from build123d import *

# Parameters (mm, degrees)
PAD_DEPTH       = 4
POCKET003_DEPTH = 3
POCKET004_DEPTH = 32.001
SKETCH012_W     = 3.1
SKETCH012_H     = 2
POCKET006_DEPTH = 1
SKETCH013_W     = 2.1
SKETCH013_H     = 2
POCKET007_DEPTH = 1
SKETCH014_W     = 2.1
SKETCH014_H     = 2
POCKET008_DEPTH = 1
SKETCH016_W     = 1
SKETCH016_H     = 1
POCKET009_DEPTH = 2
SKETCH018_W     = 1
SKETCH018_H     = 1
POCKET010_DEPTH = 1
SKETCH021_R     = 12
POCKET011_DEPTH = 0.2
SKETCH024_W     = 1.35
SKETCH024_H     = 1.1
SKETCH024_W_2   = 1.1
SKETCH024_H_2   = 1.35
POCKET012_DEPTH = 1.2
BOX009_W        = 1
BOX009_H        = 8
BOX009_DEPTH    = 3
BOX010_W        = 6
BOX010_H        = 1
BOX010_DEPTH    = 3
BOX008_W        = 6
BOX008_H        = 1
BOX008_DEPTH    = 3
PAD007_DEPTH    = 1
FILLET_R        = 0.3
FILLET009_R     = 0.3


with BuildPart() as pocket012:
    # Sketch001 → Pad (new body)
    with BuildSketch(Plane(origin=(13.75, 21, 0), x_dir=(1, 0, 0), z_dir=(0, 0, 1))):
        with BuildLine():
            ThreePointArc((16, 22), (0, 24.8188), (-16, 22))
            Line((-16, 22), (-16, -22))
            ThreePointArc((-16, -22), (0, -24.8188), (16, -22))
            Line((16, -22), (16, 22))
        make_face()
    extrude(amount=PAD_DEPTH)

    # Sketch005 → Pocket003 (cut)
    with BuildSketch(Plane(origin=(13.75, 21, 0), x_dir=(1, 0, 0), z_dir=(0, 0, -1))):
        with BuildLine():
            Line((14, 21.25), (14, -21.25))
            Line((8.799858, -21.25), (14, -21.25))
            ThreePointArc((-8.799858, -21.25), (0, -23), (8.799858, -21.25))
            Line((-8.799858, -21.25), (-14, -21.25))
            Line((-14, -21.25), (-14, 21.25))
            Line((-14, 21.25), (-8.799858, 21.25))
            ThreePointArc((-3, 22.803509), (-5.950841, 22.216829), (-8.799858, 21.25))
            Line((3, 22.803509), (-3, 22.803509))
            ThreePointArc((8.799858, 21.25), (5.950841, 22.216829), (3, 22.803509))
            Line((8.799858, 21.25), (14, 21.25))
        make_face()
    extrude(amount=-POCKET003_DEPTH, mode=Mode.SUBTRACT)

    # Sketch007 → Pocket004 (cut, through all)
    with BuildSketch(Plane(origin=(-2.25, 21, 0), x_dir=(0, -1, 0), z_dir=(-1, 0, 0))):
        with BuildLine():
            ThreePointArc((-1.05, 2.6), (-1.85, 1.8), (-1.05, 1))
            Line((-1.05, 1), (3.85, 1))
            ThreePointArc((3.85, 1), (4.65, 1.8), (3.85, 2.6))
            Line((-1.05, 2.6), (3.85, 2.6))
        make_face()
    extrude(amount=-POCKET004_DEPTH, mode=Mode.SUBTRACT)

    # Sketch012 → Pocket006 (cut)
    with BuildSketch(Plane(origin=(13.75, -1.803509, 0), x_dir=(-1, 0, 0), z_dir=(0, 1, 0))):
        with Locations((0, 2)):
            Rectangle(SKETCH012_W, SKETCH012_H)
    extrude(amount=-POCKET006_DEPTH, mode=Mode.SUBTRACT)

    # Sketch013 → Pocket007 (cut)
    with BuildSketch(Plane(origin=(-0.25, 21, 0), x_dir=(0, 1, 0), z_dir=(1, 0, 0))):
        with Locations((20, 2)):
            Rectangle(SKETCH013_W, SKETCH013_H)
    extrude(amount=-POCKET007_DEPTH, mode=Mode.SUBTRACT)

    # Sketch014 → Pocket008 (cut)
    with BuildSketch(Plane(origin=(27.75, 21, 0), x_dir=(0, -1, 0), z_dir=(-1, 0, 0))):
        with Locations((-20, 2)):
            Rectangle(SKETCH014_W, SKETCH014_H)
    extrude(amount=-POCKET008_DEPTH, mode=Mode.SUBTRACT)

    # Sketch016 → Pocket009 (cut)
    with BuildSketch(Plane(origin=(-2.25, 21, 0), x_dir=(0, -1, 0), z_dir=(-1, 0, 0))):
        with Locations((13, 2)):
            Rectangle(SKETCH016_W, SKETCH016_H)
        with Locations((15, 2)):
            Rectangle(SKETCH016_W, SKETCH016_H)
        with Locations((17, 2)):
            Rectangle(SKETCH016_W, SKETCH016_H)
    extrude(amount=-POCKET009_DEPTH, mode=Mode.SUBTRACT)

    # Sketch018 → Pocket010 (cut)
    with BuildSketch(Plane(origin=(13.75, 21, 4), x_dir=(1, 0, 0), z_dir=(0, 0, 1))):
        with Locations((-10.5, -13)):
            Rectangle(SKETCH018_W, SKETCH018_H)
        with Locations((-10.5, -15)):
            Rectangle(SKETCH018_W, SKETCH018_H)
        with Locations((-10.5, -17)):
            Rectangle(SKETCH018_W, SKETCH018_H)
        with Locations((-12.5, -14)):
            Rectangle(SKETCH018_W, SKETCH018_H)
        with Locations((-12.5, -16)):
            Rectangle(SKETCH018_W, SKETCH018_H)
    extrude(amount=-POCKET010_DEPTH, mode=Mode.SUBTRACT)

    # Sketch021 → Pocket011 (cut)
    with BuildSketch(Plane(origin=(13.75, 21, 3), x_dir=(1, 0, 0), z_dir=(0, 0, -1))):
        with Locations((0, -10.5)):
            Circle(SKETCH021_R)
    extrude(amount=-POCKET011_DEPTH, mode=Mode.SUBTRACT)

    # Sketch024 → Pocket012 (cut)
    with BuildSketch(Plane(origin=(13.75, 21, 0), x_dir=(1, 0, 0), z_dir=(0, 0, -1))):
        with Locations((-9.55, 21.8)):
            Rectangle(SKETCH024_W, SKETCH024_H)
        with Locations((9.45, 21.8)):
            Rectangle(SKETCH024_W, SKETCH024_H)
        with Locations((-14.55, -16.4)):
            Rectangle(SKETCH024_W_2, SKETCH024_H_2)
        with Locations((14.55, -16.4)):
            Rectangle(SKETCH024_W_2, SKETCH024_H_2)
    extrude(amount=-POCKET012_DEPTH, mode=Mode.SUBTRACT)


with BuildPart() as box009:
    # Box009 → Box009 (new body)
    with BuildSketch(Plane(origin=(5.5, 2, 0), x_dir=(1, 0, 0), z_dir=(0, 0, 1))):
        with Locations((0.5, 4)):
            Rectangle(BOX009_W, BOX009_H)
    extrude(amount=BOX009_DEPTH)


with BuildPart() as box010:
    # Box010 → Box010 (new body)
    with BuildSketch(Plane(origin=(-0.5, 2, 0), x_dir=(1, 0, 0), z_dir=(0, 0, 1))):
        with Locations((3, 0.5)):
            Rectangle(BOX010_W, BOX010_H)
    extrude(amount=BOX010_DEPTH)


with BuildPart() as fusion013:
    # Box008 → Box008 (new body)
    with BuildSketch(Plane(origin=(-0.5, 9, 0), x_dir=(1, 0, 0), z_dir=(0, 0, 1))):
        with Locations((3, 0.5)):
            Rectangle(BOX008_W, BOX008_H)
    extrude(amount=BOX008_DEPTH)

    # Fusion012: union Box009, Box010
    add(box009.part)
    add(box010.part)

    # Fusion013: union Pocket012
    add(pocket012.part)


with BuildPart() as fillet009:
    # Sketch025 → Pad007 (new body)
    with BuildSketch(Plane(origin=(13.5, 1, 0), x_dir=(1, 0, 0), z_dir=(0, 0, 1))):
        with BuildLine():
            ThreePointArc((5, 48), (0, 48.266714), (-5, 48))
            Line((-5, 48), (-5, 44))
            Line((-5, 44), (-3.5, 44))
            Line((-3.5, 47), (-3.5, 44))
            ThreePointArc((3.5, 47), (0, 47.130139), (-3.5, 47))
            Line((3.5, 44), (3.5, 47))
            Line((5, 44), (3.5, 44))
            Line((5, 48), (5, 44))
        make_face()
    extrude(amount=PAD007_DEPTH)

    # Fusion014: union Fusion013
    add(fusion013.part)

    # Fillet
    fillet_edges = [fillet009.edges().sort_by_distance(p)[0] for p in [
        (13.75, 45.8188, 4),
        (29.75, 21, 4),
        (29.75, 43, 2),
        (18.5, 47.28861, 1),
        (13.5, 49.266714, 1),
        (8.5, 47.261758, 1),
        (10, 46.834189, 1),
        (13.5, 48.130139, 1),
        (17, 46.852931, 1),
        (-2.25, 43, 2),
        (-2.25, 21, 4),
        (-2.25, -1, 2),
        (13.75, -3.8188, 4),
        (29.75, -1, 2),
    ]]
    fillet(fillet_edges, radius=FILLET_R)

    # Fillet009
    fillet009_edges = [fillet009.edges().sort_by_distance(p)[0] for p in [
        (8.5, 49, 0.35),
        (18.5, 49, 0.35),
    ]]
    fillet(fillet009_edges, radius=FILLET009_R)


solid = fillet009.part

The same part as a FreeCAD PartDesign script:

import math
import FreeCAD as App
import Part
import Sketcher

V = App.Vector
Q = App.Units.Quantity


def edges_at(feature, points):
    """Names of the edges that pass closest to the given points."""
    edges = feature.Shape.Edges
    near = lambda p: min(range(len(edges)), key=lambda i: edges[i].distToShape(Part.Vertex(*p))[0])
    return sorted({f"Edge{near(p) + 1}" for p in points})


def add_polygon(sketch, points):
    """Adds a closed chain of lines whose ends are joined by coincident constraints."""
    first, n = sketch.GeometryCount, len(points)
    for a, b in zip(points, points[1:] + points[:1]):
        sketch.addGeometry(Part.LineSegment(App.Vector(*a, 0), App.Vector(*b, 0)), False)
    for i in range(n):
        sketch.addConstraint(Sketcher.Constraint("Coincident", first + i, 2, first + (i + 1) % n, 1))

doc = App.newDocument("Part")
body = doc.addObject("PartDesign::Body", "Body")

# Sketch on XY plane
sketch1 = body.newObject("Sketcher::SketchObject", "Sketch")
sketch1.AttachmentSupport = (doc.getObject("XY_Plane"), [""])
sketch1.MapMode = "FlatFace"
sketch1.addGeometry([
    Part.ArcOfCircle(Part.Circle(V(13.75, -0.999994, 0), V(0, 0, 1), 46.818794), math.radians(70.016891), math.radians(109.983109)),
    Part.LineSegment(V(-2.25, 43, 0), V(-2.25, -1, 0)),
    Part.ArcOfCircle(Part.Circle(V(13.75, 42.999994, 0), V(0, 0, 1), 46.818794), math.radians(-109.983109), math.radians(-70.016891)),
    Part.LineSegment(V(29.75, -1, 0), V(29.75, 43, 0)),
], False)
sketch1.addConstraint([
    Sketcher.Constraint("Coincident", 0, 2, 1, 1),
    Sketcher.Constraint("Coincident", 1, 2, 2, 1),
    Sketcher.Constraint("Coincident", 2, 2, 3, 1),
    Sketcher.Constraint("Coincident", 3, 2, 0, 1),
    Sketcher.Constraint("Vertical", 1),
    Sketcher.Constraint("Vertical", 3),
    Sketcher.Constraint("Equal", 0, 2),
    Sketcher.Constraint("Horizontal", 1, 2, 2, 2),
    Sketcher.Constraint("Horizontal", 0, 2, 3, 2),
    Sketcher.Constraint("DistanceY", 1, 2, 1, 1, Q("44 mm")),
    Sketcher.Constraint("DistanceY", -1, 1, 0, 2, Q("43 mm")),
    Sketcher.Constraint("DistanceX", 0, 2, 2, 3, Q("16 mm")),
    Sketcher.Constraint("DistanceX", -1, 1, 0, 3, Q("13.75 mm")),
    Sketcher.Constraint("Radius", 0, Q("46.818794 mm")),
])
pad1 = body.newObject("PartDesign::Pad", "Pad")
pad1.Profile = sketch1
pad1.Length = 4

# Sketch on XY plane
sketch2 = body.newObject("Sketcher::SketchObject", "Sketch001")
sketch2.AttachmentSupport = (doc.getObject("XY_Plane"), [""])
sketch2.MapMode = "FlatFace"
sketch2.addGeometry([
    Part.LineSegment(V(27.75, 42.25, 0), V(27.75, -0.25, 0)),  # 0
    Part.LineSegment(V(27.75, -0.25, 0), V(22.549858, -0.25, 0)),  # 1
    Part.ArcOfCircle(Part.Circle(V(13.74999, 21.00003, 0), V(0, 0, 1), 23.000031), math.radians(-82.505268), math.radians(-67.505023)),  # 2
    Part.LineSegment(V(16.75, -1.803509, 0), V(10.75, -1.803509, 0)),  # 3
    Part.ArcOfCircle(Part.Circle(V(13.75001, 21.00003, 0), V(0, 0, 1), 23.000031), math.radians(-112.494977), math.radians(-97.494732)),  # 4
    Part.LineSegment(V(4.950142, -0.25, 0), V(-0.25, -0.25, 0)),  # 5
    Part.LineSegment(V(-0.25, -0.25, 0), V(-0.25, 42.25, 0)),  # 6
    Part.LineSegment(V(-0.25, 42.25, 0), V(4.950142, 42.25, 0)),  # 7
    Part.ArcOfCircle(Part.Circle(V(13.75, 21, 0), V(0, 0, 1), 23), math.radians(67.505018), math.radians(112.494982)),  # 8
    Part.LineSegment(V(22.549858, 42.25, 0), V(27.75, 42.25, 0)),  # 9
], False)
sketch2.addConstraint([
    Sketcher.Constraint("Coincident", 0, 2, 1, 1),
    Sketcher.Constraint("Coincident", 1, 2, 2, 2),
    Sketcher.Constraint("Coincident", 2, 1, 3, 1),
    Sketcher.Constraint("Coincident", 3, 2, 4, 2),
    Sketcher.Constraint("Coincident", 4, 1, 5, 1),
    Sketcher.Constraint("Coincident", 5, 2, 6, 1),
    Sketcher.Constraint("Coincident", 6, 2, 7, 1),
    Sketcher.Constraint("Coincident", 7, 2, 8, 2),
    Sketcher.Constraint("Coincident", 8, 1, 9, 1),
    Sketcher.Constraint("Coincident", 9, 2, 0, 1),
    Sketcher.Constraint("Vertical", 0),
    Sketcher.Constraint("Horizontal", 1),
    Sketcher.Constraint("Horizontal", 3),
    Sketcher.Constraint("Horizontal", 5),
    Sketcher.Constraint("Vertical", 6),
    Sketcher.Constraint("Horizontal", 7),
    Sketcher.Constraint("Horizontal", 9),
    Sketcher.Constraint("Equal", 2, 4),
    Sketcher.Constraint("Horizontal", 2, 3, 4, 3),
    Sketcher.Constraint("Horizontal", 1, 2, 4, 1),
    Sketcher.Constraint("Horizontal", 7, 2, 8, 1),
    Sketcher.Constraint("Vertical", 4, 1, 7, 2),
    Sketcher.Constraint("Vertical", 1, 2, 8, 1),
    Sketcher.Constraint("Equal", 1, 5),
    Sketcher.Constraint("Radius", 8, Q("23 mm")),
    Sketcher.Constraint("DistanceX", 3, 2, 3, 1, Q("6 mm")),
    Sketcher.Constraint("DistanceY", 0, 2, 0, 1, Q("42.5 mm")),
    Sketcher.Constraint("DistanceY", -1, 1, 8, 3, Q("21 mm")),
    Sketcher.Constraint("DistanceX", 8, 3, 0, 2, Q("14 mm")),
    Sketcher.Constraint("DistanceX", -1, 1, 8, 3, Q("13.75 mm")),
    Sketcher.Constraint("DistanceY", 0, 2, -1, 1, Q("0.25 mm")),
    Sketcher.Constraint("Radius", 2, Q("23.000031 mm")),
    Sketcher.Constraint("DistanceX", -1, 1, 2, 3, Q("13.74999 mm")),
])
pocket1 = body.newObject("PartDesign::Pocket", "Pocket")
pocket1.Profile = sketch2
pocket1.Length = 3
pocket1.Reversed = True

# Sketch on YZ plane
sketch3 = body.newObject("Sketcher::SketchObject", "Sketch002")
sketch3.AttachmentSupport = (doc.getObject("YZ_Plane"), [""])
sketch3.MapMode = "FlatFace"
sketch3.AttachmentOffset = App.Placement(V(0, 0, -2.25), App.Rotation())
sketch3.addGeometry([
    Part.ArcOfCircle(Part.Circle(V(22.05, 1.8, 0), V(0, 0, 1), 0.8), math.radians(-90), math.radians(90)),
    Part.LineSegment(V(22.05, 1, 0), V(17.15, 1, 0)),
    Part.ArcOfCircle(Part.Circle(V(17.15, 1.8, 0), V(0, 0, 1), 0.8), math.radians(90), math.radians(270)),
    Part.LineSegment(V(17.15, 2.6, 0), V(22.05, 2.6, 0)),
], False)
sketch3.addConstraint([
    Sketcher.Constraint("Tangent", 0, 1, 1, 1),
    Sketcher.Constraint("Tangent", 1, 2, 2, 2),
    Sketcher.Constraint("Tangent", 2, 1, 3, 1),
    Sketcher.Constraint("Tangent", 3, 2, 0, 2),
    Sketcher.Constraint("Horizontal", 1),
    Sketcher.Constraint("Horizontal", 3),
    Sketcher.Constraint("Radius", 0, Q("0.8 mm")),
    Sketcher.Constraint("DistanceX", 1, 2, 1, 1, Q("4.9 mm")),
    Sketcher.Constraint("DistanceY", -1, 1, 0, 1, Q("1 mm")),
    Sketcher.Constraint("DistanceX", -1, 1, 0, 3, Q("22.05 mm")),
])
pocket2 = body.newObject("PartDesign::Pocket", "Pocket001")
pocket2.Profile = sketch3
pocket2.Type = "ThroughAll"
pocket2.Reversed = True

# Sketch on XZ plane
sketch4 = body.newObject("Sketcher::SketchObject", "Sketch003")
sketch4.AttachmentSupport = (doc.getObject("XZ_Plane"), [""])
sketch4.MapMode = "FlatFace"
sketch4.AttachmentOffset = App.Placement(V(0, 0, 1.803509), App.Rotation())
add_polygon(sketch4, [(15.3, 3), (15.3, 1), (12.2, 1), (12.2, 3)])  # lines 0-3
sketch4.addConstraint([
    Sketcher.Constraint("Vertical", 0),
    Sketcher.Constraint("Horizontal", 1),
    Sketcher.Constraint("Vertical", 2),
    Sketcher.Constraint("Horizontal", 3),
    Sketcher.Constraint("DistanceY", 0, 2, 0, 1, Q("2 mm")),
    Sketcher.Constraint("DistanceX", 1, 2, 1, 1, Q("3.1 mm")),
    Sketcher.Constraint("DistanceY", -1, 1, 0, 2, Q("1 mm")),
    Sketcher.Constraint("DistanceX", -1, 1, 0, 2, Q("15.3 mm")),
])
pocket3 = body.newObject("PartDesign::Pocket", "Pocket002")
pocket3.Profile = sketch4
pocket3.Length = 1
pocket3.Reversed = True

# Sketch on YZ plane
sketch5 = body.newObject("Sketcher::SketchObject", "Sketch004")
sketch5.AttachmentSupport = (doc.getObject("YZ_Plane"), [""])
sketch5.MapMode = "FlatFace"
sketch5.AttachmentOffset = App.Placement(V(0, 0, -0.25), App.Rotation())
add_polygon(sketch5, [(39.95, 3), (39.95, 1), (42.05, 1), (42.05, 3)])  # lines 0-3
sketch5.addConstraint([
    Sketcher.Constraint("Vertical", 0),
    Sketcher.Constraint("Horizontal", 1),
    Sketcher.Constraint("Vertical", 2),
    Sketcher.Constraint("Horizontal", 3),
    Sketcher.Constraint("DistanceY", 0, 2, 0, 1, Q("2 mm")),
    Sketcher.Constraint("DistanceX", 1, 1, 1, 2, Q("2.1 mm")),
    Sketcher.Constraint("DistanceY", -1, 1, 0, 2, Q("1 mm")),
    Sketcher.Constraint("DistanceX", -1, 1, 0, 2, Q("39.95 mm")),
])
pocket4 = body.newObject("PartDesign::Pocket", "Pocket003")
pocket4.Profile = sketch5
pocket4.Length = 1

# Sketch on YZ plane
sketch6 = body.newObject("Sketcher::SketchObject", "Sketch005")
sketch6.AttachmentSupport = (doc.getObject("YZ_Plane"), [""])
sketch6.MapMode = "FlatFace"
sketch6.AttachmentOffset = App.Placement(V(0, 0, 27.75), App.Rotation())
add_polygon(sketch6, [(42.05, 3), (42.05, 1), (39.95, 1), (39.95, 3)])  # lines 0-3
sketch6.addConstraint([
    Sketcher.Constraint("Vertical", 0),
    Sketcher.Constraint("Horizontal", 1),
    Sketcher.Constraint("Vertical", 2),
    Sketcher.Constraint("Horizontal", 3),
    Sketcher.Constraint("DistanceY", 0, 2, 0, 1, Q("2 mm")),
    Sketcher.Constraint("DistanceX", 1, 2, 1, 1, Q("2.1 mm")),
    Sketcher.Constraint("DistanceY", -1, 1, 0, 2, Q("1 mm")),
    Sketcher.Constraint("DistanceX", -1, 1, 0, 2, Q("42.05 mm")),
])
pocket5 = body.newObject("PartDesign::Pocket", "Pocket004")
pocket5.Profile = sketch6
pocket5.Length = 1
pocket5.Reversed = True

# Sketch on YZ plane
sketch7 = body.newObject("Sketcher::SketchObject", "Sketch006")
sketch7.AttachmentSupport = (doc.getObject("YZ_Plane"), [""])
sketch7.MapMode = "FlatFace"
sketch7.AttachmentOffset = App.Placement(V(0, 0, -2.25), App.Rotation())
add_polygon(sketch7, [(8.5, 2.5), (8.5, 1.5), (7.5, 1.5), (7.5, 2.5)])  # lines 0-3
add_polygon(sketch7, [(6.5, 2.5), (6.5, 1.5), (5.5, 1.5), (5.5, 2.5)])  # lines 4-7
add_polygon(sketch7, [(4.5, 2.5), (4.5, 1.5), (3.5, 1.5), (3.5, 2.5)])  # lines 8-11
sketch7.addConstraint([
    Sketcher.Constraint("Vertical", 0),
    Sketcher.Constraint("Horizontal", 1),
    Sketcher.Constraint("Vertical", 2),
    Sketcher.Constraint("Horizontal", 3),
    Sketcher.Constraint("Vertical", 4),
    Sketcher.Constraint("Horizontal", 5),
    Sketcher.Constraint("Vertical", 6),
    Sketcher.Constraint("Horizontal", 7),
    Sketcher.Constraint("Vertical", 8),
    Sketcher.Constraint("Horizontal", 9),
    Sketcher.Constraint("Vertical", 10),
    Sketcher.Constraint("Horizontal", 11),
    Sketcher.Constraint("Horizontal", 1, 2, 4, 2),
    Sketcher.Constraint("Horizontal", 3, 2, 6, 2),
    Sketcher.Constraint("Horizontal", 5, 2, 8, 2),
    Sketcher.Constraint("Horizontal", 7, 2, 10, 2),
    Sketcher.Constraint("Equal", 3, 5),
    Sketcher.Constraint("Equal", 7, 9),
    Sketcher.Constraint("Equal", 11, 0),
    Sketcher.Constraint("DistanceX", 1, 2, 1, 1, Q("1 mm")),
    Sketcher.Constraint("DistanceX", 4, 2, 1, 2, Q("1 mm")),
    Sketcher.Constraint("DistanceX", 8, 2, 5, 2, Q("1 mm")),
    Sketcher.Constraint("DistanceX", -1, 1, 0, 2, Q("8.5 mm")),
    Sketcher.Constraint("DistanceY", -1, 1, 0, 2, Q("1.5 mm")),
])
pocket6 = body.newObject("PartDesign::Pocket", "Pocket005")
pocket6.Profile = sketch7
pocket6.Length = 2
pocket6.Reversed = True

# Sketch on XY plane
sketch8 = body.newObject("Sketcher::SketchObject", "Sketch007")
sketch8.AttachmentSupport = (doc.getObject("XY_Plane"), [""])
sketch8.MapMode = "FlatFace"
sketch8.AttachmentOffset = App.Placement(V(0, 0, 4), App.Rotation())
add_polygon(sketch8, [(2.75, 8.5), (2.75, 7.5), (3.75, 7.5), (3.75, 8.5)])  # lines 0-3
add_polygon(sketch8, [(2.75, 6.5), (2.75, 5.5), (3.75, 5.5), (3.75, 6.5)])  # lines 4-7
add_polygon(sketch8, [(2.75, 4.5), (2.75, 3.5), (3.75, 3.5), (3.75, 4.5)])  # lines 8-11
add_polygon(sketch8, [(0.75, 7.5), (0.75, 6.5), (1.75, 6.5), (1.75, 7.5)])  # lines 12-15
add_polygon(sketch8, [(0.75, 5.5), (0.75, 4.5), (1.75, 4.5), (1.75, 5.5)])  # lines 16-19
sketch8.addConstraint([
    Sketcher.Constraint("Vertical", 0),
    Sketcher.Constraint("Horizontal", 1),
    Sketcher.Constraint("Vertical", 2),
    Sketcher.Constraint("Horizontal", 3),
    Sketcher.Constraint("Vertical", 4),
    Sketcher.Constraint("Horizontal", 5),
    Sketcher.Constraint("Vertical", 6),
    Sketcher.Constraint("Horizontal", 7),
    Sketcher.Constraint("Vertical", 8),
    Sketcher.Constraint("Horizontal", 9),
    Sketcher.Constraint("Vertical", 10),
    Sketcher.Constraint("Horizontal", 11),
    Sketcher.Constraint("Vertical", 12),
    Sketcher.Constraint("Horizontal", 13),
    Sketcher.Constraint("Vertical", 14),
    Sketcher.Constraint("Horizontal", 15),
    Sketcher.Constraint("Vertical", 16),
    Sketcher.Constraint("Horizontal", 17),
    Sketcher.Constraint("Vertical", 18),
    Sketcher.Constraint("Horizontal", 19),
    Sketcher.Constraint("Horizontal", 7, 2, 12, 2),
    Sketcher.Constraint("Horizontal", 1, 2, 14, 2),
    Sketcher.Constraint("Horizontal", 11, 2, 16, 2),
    Sketcher.Constraint("Horizontal", 5, 2, 18, 2),
    Sketcher.Constraint("Vertical", 3, 2, 4, 2),
    Sketcher.Constraint("Vertical", 2, 2, 5, 2),
    Sketcher.Constraint("Vertical", 7, 2, 8, 2),
    Sketcher.Constraint("Vertical", 6, 2, 9, 2),
    Sketcher.Constraint("Vertical", 15, 2, 16, 2),
    Sketcher.Constraint("Vertical", 14, 2, 17, 2),
    Sketcher.Constraint("Equal", 11, 13),
    Sketcher.Constraint("Equal", 19, 0),
    Sketcher.Constraint("Equal", 2, 4),
    Sketcher.Constraint("Equal", 6, 8),
    Sketcher.Constraint("Equal", 10, 12),
    Sketcher.Constraint("Equal", 14, 16),
    Sketcher.Constraint("DistanceX", 1, 1, 1, 2, Q("1 mm")),
    Sketcher.Constraint("DistanceX", 12, 2, 7, 2, Q("2 mm")),
    Sketcher.Constraint("DistanceY", -1, 1, 0, 2, Q("7.5 mm")),
    Sketcher.Constraint("DistanceX", -1, 1, 0, 2, Q("2.75 mm")),
])
pocket7 = body.newObject("PartDesign::Pocket", "Pocket006")
pocket7.Profile = sketch8
pocket7.Length = 1

# Sketch on XY plane
sketch9 = body.newObject("Sketcher::SketchObject", "Sketch008")
sketch9.AttachmentSupport = (doc.getObject("XY_Plane"), [""])
sketch9.MapMode = "FlatFace"
sketch9.AttachmentOffset = App.Placement(V(0, 0, 3), App.Rotation())
sketch9.addGeometry(Part.Circle(V(13.75, 31.5, 0), V(0, 0, 1), 12), False)
sketch9.addConstraint([
    Sketcher.Constraint("Diameter", 0, Q("24 mm")),
    Sketcher.Constraint("DistanceY", -1, 1, 0, 3, Q("31.5 mm")),
    Sketcher.Constraint("DistanceX", -1, 1, 0, 3, Q("13.75 mm")),
])
pocket8 = body.newObject("PartDesign::Pocket", "Pocket007")
pocket8.Profile = sketch9
pocket8.Length = 0.2
pocket8.Reversed = True

# Sketch on XY plane
sketch10 = body.newObject("Sketcher::SketchObject", "Sketch009")
sketch10.AttachmentSupport = (doc.getObject("XY_Plane"), [""])
sketch10.MapMode = "FlatFace"
add_polygon(sketch10, [(3.525, -1.35), (3.525, -0.25), (4.875, -0.25), (4.875, -1.35)])  # lines 0-3
add_polygon(sketch10, [(22.525, -1.35), (22.525, -0.25), (23.875, -0.25), (23.875, -1.35)])  # lines 4-7
add_polygon(sketch10, [(-1.35, 36.725), (-1.35, 38.075), (-0.25, 38.075), (-0.25, 36.725)])  # lines 8-11
add_polygon(sketch10, [(27.75, 36.725), (27.75, 38.075), (28.85, 38.075), (28.85, 36.725)])  # lines 12-15
sketch10.addConstraint([
    Sketcher.Constraint("Vertical", 0),
    Sketcher.Constraint("Horizontal", 1),
    Sketcher.Constraint("Vertical", 2),
    Sketcher.Constraint("Horizontal", 3),
    Sketcher.Constraint("Vertical", 4),
    Sketcher.Constraint("Horizontal", 5),
    Sketcher.Constraint("Vertical", 6),
    Sketcher.Constraint("Horizontal", 7),
    Sketcher.Constraint("Vertical", 8),
    Sketcher.Constraint("Horizontal", 9),
    Sketcher.Constraint("Vertical", 10),
    Sketcher.Constraint("Horizontal", 11),
    Sketcher.Constraint("Vertical", 12),
    Sketcher.Constraint("Horizontal", 13),
    Sketcher.Constraint("Vertical", 14),
    Sketcher.Constraint("Horizontal", 15),
    Sketcher.Constraint("Horizontal", 1, 2, 4, 2),
    Sketcher.Constraint("Horizontal", 3, 2, 6, 2),
    Sketcher.Constraint("Horizontal", 9, 2, 12, 2),
    Sketcher.Constraint("Horizontal", 11, 2, 14, 2),
    Sketcher.Constraint("Equal", 3, 5),
    Sketcher.Constraint("Equal", 11, 13),
    Sketcher.Constraint("Equal", 15, 0),
    Sketcher.Constraint("Equal", 7, 8),
    Sketcher.Constraint("DistanceX", 9, 1, 9, 2, Q("1.1 mm")),
    Sketcher.Constraint("DistanceX", 0, 2, 4, 2, Q("19 mm")),
    Sketcher.Constraint("DistanceX", 9, 2, 12, 2, Q("28 mm")),
    Sketcher.Constraint("DistanceX", 1, 1, 1, 2, Q("1.35 mm")),
    Sketcher.Constraint("DistanceY", 0, 2, -1, 1, Q("0.25 mm")),
    Sketcher.Constraint("DistanceX", 8, 2, -1, 1, Q("1.35 mm")),
    Sketcher.Constraint("DistanceX", -1, 1, 0, 2, Q("3.525 mm")),
    Sketcher.Constraint("DistanceY", -1, 1, 8, 2, Q("38.075 mm")),
])
pocket9 = body.newObject("PartDesign::Pocket", "Pocket008")
pocket9.Profile = sketch10
pocket9.Length = 1.2
pocket9.Reversed = True
body2 = doc.addObject("PartDesign::Body", "Body001")

# Sketch on XY plane
sketch11 = body2.newObject("Sketcher::SketchObject", "Sketch010")
sketch11.AttachmentSupport = (doc.getObject("XY_Plane001"), [""])
sketch11.MapMode = "FlatFace"
add_polygon(sketch11, [(5.5, 10), (5.5, 2), (6.5, 2), (6.5, 10)])  # lines 0-3
sketch11.addConstraint([
    Sketcher.Constraint("Vertical", 0),
    Sketcher.Constraint("Horizontal", 1),
    Sketcher.Constraint("Vertical", 2),
    Sketcher.Constraint("Horizontal", 3),
    Sketcher.Constraint("DistanceX", 1, 1, 1, 2, Q("1 mm")),
    Sketcher.Constraint("DistanceY", 0, 2, 0, 1, Q("8 mm")),
    Sketcher.Constraint("DistanceY", -1, 1, 0, 2, Q("2 mm")),
    Sketcher.Constraint("DistanceX", -1, 1, 0, 2, Q("5.5 mm")),
])
pad2 = body2.newObject("PartDesign::Pad", "Pad001")
pad2.Profile = sketch11
pad2.Length = 3
body3 = doc.addObject("PartDesign::Body", "Body002")

# Sketch on XY plane
sketch12 = body3.newObject("Sketcher::SketchObject", "Sketch011")
sketch12.AttachmentSupport = (doc.getObject("XY_Plane002"), [""])
sketch12.MapMode = "FlatFace"
add_polygon(sketch12, [(-0.5, 3), (-0.5, 2), (5.5, 2), (5.5, 3)])  # lines 0-3
sketch12.addConstraint([
    Sketcher.Constraint("Vertical", 0),
    Sketcher.Constraint("Horizontal", 1),
    Sketcher.Constraint("Vertical", 2),
    Sketcher.Constraint("Horizontal", 3),
    Sketcher.Constraint("DistanceX", 1, 1, 1, 2, Q("6 mm")),
    Sketcher.Constraint("DistanceY", 0, 2, 0, 1, Q("1 mm")),
    Sketcher.Constraint("DistanceY", -1, 1, 0, 2, Q("2 mm")),
    Sketcher.Constraint("DistanceX", 0, 2, -1, 1, Q("0.5 mm")),
])
pad3 = body3.newObject("PartDesign::Pad", "Pad002")
pad3.Profile = sketch12
pad3.Length = 3
body4 = doc.addObject("PartDesign::Body", "Body003")

# Sketch on XY plane
sketch13 = body4.newObject("Sketcher::SketchObject", "Sketch012")
sketch13.AttachmentSupport = (doc.getObject("XY_Plane003"), [""])
sketch13.MapMode = "FlatFace"
add_polygon(sketch13, [(-0.5, 10), (-0.5, 9), (5.5, 9), (5.5, 10)])  # lines 0-3
sketch13.addConstraint([
    Sketcher.Constraint("Vertical", 0),
    Sketcher.Constraint("Horizontal", 1),
    Sketcher.Constraint("Vertical", 2),
    Sketcher.Constraint("Horizontal", 3),
    Sketcher.Constraint("DistanceX", 1, 1, 1, 2, Q("6 mm")),
    Sketcher.Constraint("DistanceY", 0, 2, 0, 1, Q("1 mm")),
    Sketcher.Constraint("DistanceY", -1, 1, 0, 2, Q("9 mm")),
    Sketcher.Constraint("DistanceX", 0, 2, -1, 1, Q("0.5 mm")),
])
pad4 = body4.newObject("PartDesign::Pad", "Pad003")
pad4.Profile = sketch13
pad4.Length = 3
doc.recompute()

boolean = body4.newObject("PartDesign::Boolean", "Boolean")
boolean.Type = "Fuse"
boolean.addObjects([body2])
doc.recompute()

boolean2 = body4.newObject("PartDesign::Boolean", "Boolean001")
boolean2.Type = "Fuse"
boolean2.addObjects([body3])
doc.recompute()

boolean3 = body4.newObject("PartDesign::Boolean", "Boolean002")
boolean3.Type = "Fuse"
boolean3.addObjects([body])
body5 = doc.addObject("PartDesign::Body", "Body004")

# Sketch on XY plane
sketch14 = body5.newObject("Sketcher::SketchObject", "Sketch013")
sketch14.AttachmentSupport = (doc.getObject("XY_Plane004"), [""])
sketch14.MapMode = "FlatFace"
sketch14.addGeometry([
    Part.ArcOfCircle(Part.Circle(V(13.5, 2.266676, 0), V(0, 0, 1), 47.000038), math.radians(83.893153), math.radians(96.106847)),  # 0
    Part.LineSegment(V(8.5, 49, 0), V(8.5, 45, 0)),  # 1
    Part.LineSegment(V(8.5, 45, 0), V(10, 45, 0)),  # 2
    Part.LineSegment(V(10, 45, 0), V(10, 48, 0)),  # 3
    Part.ArcOfCircle(Part.Circle(V(13.5, 1.000008, 0), V(0, 0, 1), 47.130131), math.radians(85.741153), math.radians(94.258847)),  # 4
    Part.LineSegment(V(17, 48, 0), V(17, 45, 0)),  # 5
    Part.LineSegment(V(17, 45, 0), V(18.5, 45, 0)),  # 6
    Part.LineSegment(V(18.5, 45, 0), V(18.5, 49, 0)),  # 7
], False)
sketch14.addConstraint([
    Sketcher.Constraint("Coincident", 0, 2, 1, 1),
    Sketcher.Constraint("Coincident", 1, 2, 2, 1),
    Sketcher.Constraint("Coincident", 2, 2, 3, 1),
    Sketcher.Constraint("Coincident", 3, 2, 4, 2),
    Sketcher.Constraint("Coincident", 4, 1, 5, 1),
    Sketcher.Constraint("Coincident", 5, 2, 6, 1),
    Sketcher.Constraint("Coincident", 6, 2, 7, 1),
    Sketcher.Constraint("Coincident", 7, 2, 0, 1),
    Sketcher.Constraint("Vertical", 1),
    Sketcher.Constraint("Horizontal", 2),
    Sketcher.Constraint("Vertical", 3),
    Sketcher.Constraint("Vertical", 5),
    Sketcher.Constraint("Horizontal", 6),
    Sketcher.Constraint("Vertical", 7),
    Sketcher.Constraint("Horizontal", 3, 2, 4, 1),
    Sketcher.Constraint("Horizontal", 2, 2, 5, 2),
    Sketcher.Constraint("Horizontal", 0, 2, 7, 2),
    Sketcher.Constraint("Vertical", 0, 3, 4, 3),
    Sketcher.Constraint("DistanceY", 1, 2, 1, 1, Q("4 mm")),
    Sketcher.Constraint("DistanceY", 3, 1, 3, 2, Q("3 mm")),
    Sketcher.Constraint("DistanceX", 2, 1, 2, 2, Q("1.5 mm")),
    Sketcher.Constraint("DistanceY", -1, 1, 0, 2, Q("49 mm")),
    Sketcher.Constraint("DistanceX", -1, 1, 2, 2, Q("10 mm")),
    Sketcher.Constraint("DistanceX", -1, 1, 4, 1, Q("17 mm")),
    Sketcher.Constraint("Radius", 0, Q("47.000038 mm")),
    Sketcher.Constraint("Radius", 4, Q("47.130131 mm")),
])
pad5 = body5.newObject("PartDesign::Pad", "Pad004")
pad5.Profile = sketch14
pad5.Length = 1
doc.recompute()

boolean4 = body5.newObject("PartDesign::Boolean", "Boolean003")
boolean4.Type = "Fuse"
boolean4.addObjects([body4])
doc.recompute()

fillet = body5.newObject("PartDesign::Fillet", "Fillet")
fillet.Base = (boolean4, edges_at(boolean4, [
    (13.75, 45.819, 4),
    (29.75, 21, 4),
    (29.75, 43, 2),
    (18.5, 47.289, 1),
    (13.5, 49.267, 1),
    (8.5, 47.262, 1),
    (10, 46.834, 1),
    (13.5, 48.13, 1),
    (17, 46.853, 1),
    (-2.25, 43, 2),
    (-2.25, 21, 4),
    (-2.25, -1, 2),
    (13.75, -3.819, 4),
    (29.75, -1, 2),
]))
fillet.Radius = 0.3
doc.recompute()

fillet2 = body5.newObject("PartDesign::Fillet", "Fillet001")
fillet2.Base = (fillet, edges_at(fillet, [(8.5, 49, 0.35), (18.5, 49, 0.35)]))
fillet2.Radius = 0.3

doc.recompute()
